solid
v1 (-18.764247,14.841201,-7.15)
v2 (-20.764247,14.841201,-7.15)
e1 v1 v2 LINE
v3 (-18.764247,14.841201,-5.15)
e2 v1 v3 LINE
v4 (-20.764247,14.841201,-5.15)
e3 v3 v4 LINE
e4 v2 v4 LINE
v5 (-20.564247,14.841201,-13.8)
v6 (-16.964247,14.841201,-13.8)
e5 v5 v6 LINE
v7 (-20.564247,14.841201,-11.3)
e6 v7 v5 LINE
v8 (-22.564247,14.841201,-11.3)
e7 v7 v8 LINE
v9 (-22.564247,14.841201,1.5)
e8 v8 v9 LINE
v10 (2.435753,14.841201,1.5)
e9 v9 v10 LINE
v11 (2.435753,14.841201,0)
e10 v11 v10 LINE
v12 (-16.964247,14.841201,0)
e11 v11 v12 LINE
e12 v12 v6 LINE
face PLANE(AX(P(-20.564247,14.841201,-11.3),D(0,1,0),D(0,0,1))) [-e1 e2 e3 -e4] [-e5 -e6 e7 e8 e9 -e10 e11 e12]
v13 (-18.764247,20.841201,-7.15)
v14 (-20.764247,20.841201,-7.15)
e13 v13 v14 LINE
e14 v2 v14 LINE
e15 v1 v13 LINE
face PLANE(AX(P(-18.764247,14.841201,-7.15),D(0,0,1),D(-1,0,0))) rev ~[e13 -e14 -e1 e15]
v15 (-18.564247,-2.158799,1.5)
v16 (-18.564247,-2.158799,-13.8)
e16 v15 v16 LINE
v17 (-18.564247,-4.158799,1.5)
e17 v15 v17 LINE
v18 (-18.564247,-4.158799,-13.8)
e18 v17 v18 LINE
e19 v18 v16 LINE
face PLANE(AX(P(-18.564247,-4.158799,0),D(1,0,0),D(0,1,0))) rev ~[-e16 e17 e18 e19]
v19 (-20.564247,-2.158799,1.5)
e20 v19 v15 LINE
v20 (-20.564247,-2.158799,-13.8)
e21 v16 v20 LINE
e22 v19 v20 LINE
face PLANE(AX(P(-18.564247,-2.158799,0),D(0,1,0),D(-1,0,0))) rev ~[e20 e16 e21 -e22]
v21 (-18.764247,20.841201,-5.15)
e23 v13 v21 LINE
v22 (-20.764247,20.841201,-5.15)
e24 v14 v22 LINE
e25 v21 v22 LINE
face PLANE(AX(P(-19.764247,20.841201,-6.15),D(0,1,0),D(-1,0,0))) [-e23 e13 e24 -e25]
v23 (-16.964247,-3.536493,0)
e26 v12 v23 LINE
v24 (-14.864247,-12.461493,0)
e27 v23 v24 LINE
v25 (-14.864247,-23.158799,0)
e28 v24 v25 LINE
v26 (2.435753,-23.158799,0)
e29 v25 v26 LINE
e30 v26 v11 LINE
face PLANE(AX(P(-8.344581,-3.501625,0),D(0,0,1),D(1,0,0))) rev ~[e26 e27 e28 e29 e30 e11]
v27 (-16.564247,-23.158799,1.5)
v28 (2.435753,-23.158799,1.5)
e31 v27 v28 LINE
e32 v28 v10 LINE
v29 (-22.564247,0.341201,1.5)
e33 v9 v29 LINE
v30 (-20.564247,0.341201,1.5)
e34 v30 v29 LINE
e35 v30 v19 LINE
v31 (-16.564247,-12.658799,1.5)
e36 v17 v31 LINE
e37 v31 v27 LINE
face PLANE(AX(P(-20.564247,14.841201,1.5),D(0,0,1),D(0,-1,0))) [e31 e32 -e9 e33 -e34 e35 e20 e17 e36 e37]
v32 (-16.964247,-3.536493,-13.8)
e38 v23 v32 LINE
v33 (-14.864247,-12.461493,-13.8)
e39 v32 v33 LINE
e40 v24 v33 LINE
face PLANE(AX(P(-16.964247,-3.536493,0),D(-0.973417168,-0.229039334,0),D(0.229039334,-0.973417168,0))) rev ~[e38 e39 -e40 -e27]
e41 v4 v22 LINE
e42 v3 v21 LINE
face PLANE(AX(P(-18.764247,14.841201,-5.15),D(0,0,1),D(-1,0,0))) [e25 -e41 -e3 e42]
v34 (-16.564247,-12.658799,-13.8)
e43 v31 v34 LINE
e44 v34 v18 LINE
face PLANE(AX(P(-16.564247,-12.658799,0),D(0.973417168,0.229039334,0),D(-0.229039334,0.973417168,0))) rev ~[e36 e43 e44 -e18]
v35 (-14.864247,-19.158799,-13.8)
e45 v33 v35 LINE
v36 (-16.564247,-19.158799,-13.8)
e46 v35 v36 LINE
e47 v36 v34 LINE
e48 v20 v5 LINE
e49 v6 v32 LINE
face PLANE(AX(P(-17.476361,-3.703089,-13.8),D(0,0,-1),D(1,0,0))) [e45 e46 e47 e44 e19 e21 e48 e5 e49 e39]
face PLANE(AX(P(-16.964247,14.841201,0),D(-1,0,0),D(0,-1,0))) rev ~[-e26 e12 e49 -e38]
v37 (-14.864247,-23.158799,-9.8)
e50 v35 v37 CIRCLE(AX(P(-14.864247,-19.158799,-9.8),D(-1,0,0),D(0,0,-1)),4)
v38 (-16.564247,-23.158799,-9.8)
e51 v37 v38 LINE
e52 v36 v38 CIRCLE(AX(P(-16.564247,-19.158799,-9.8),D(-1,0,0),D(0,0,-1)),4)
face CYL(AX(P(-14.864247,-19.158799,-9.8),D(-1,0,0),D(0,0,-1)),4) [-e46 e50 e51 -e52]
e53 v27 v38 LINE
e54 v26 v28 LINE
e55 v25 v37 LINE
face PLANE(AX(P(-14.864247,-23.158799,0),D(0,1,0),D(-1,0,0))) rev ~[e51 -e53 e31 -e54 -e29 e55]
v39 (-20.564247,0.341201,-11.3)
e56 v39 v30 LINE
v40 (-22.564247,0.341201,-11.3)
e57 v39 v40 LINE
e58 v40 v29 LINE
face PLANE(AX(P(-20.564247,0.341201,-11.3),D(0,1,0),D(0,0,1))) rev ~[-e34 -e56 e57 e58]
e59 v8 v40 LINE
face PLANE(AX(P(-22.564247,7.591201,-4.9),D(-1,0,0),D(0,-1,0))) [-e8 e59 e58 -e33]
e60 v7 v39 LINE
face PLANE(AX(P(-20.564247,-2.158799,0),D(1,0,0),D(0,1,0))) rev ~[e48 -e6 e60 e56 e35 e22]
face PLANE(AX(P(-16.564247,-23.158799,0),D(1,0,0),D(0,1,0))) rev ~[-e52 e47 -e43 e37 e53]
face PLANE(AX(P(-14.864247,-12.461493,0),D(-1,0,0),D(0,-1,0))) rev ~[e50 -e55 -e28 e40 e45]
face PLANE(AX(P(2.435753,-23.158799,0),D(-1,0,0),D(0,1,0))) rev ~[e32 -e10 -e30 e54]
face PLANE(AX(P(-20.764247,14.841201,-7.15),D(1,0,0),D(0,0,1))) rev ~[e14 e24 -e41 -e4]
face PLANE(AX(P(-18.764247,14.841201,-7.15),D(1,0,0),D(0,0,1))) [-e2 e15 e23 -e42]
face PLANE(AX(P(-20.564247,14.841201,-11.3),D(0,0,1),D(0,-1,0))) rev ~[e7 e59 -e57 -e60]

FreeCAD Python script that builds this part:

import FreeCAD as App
import Part
import Sketcher

V = App.Vector


def edges_at(feature, points):
    """Names of the edges that pass closest to the given points."""
    edges = feature.Shape.Edges
    near = lambda p: min(range(len(edges)), key=lambda i: edges[i].distToShape(Part.Vertex(*p))[0])
    return sorted({f"Edge{near(p) + 1}" for p in points})

doc = App.newDocument("Part")
body = doc.addObject("PartDesign::Body", "Body")

# Sketch on XY plane
sketch1 = body.newObject("Sketcher::SketchObject", "Sketch")
sketch1.AttachmentSupport = (doc.getObject("XY_Plane"), [""])
sketch1.MapMode = "FlatFace"
sketch1.addGeometry([
    Part.LineSegment(V(2.435753, 14.841201, 0), V(-20.564247, 14.841201, 0)),  # 0
    Part.LineSegment(V(-20.564247, 14.841201, 0), V(-20.564247, -2.158799, 0)),  # 1
    Part.LineSegment(V(-20.564247, -2.158799, 0), V(-18.564247, -2.158799, 0)),  # 2
    Part.LineSegment(V(-18.564247, -2.158799, 0), V(-18.564247, -4.158799, 0)),  # 3
    Part.LineSegment(V(-18.564247, -4.158799, 0), V(-16.564247, -12.658799, 0)),  # 4
    Part.LineSegment(V(-16.564247, -12.658799, 0), V(-16.564247, -23.158799, 0)),  # 5
    Part.LineSegment(V(-16.564247, -23.158799, 0), V(2.435753, -23.158799, 0)),  # 6
    Part.LineSegment(V(2.435753, -23.158799, 0), V(2.435753, 14.841201, 0)),  # 7
], False)
sketch1.addConstraint([
    Sketcher.Constraint("Coincident", 0, 2, 1, 1),
    Sketcher.Constraint("Coincident", 1, 2, 2, 1),
    Sketcher.Constraint("Coincident", 2, 2, 3, 1),
    Sketcher.Constraint("Coincident", 3, 2, 4, 1),
    Sketcher.Constraint("Coincident", 4, 2, 5, 1),
    Sketcher.Constraint("Coincident", 5, 2, 6, 1),
    Sketcher.Constraint("Coincident", 6, 2, 7, 1),
    Sketcher.Constraint("Coincident", 7, 2, 0, 1),
    Sketcher.Constraint("Horizontal", 0),
    Sketcher.Constraint("Vertical", 1),
    Sketcher.Constraint("Horizontal", 2),
    Sketcher.Constraint("Vertical", 3),
    Sketcher.Constraint("Vertical", 5),
    Sketcher.Constraint("Horizontal", 6),
    Sketcher.Constraint("Vertical", 7),
    Sketcher.Constraint("Equal", 2, 3),
    Sketcher.Constraint("DistanceX", 0, 2, 0, 1, 23.0),
    Sketcher.Constraint("DistanceX", 2, 1, 2, 2, 2.0),
    Sketcher.Constraint("DistanceX", 6, 1, 6, 2, 19.0),
    Sketcher.Constraint("DistanceY", 1, 2, 1, 1, 17.0),
    Sketcher.Constraint("DistanceY", 7, 1, 7, 2, 38.0),
    Sketcher.Constraint("DistanceY", 5, 2, 5, 1, 10.5),
    Sketcher.Constraint("DistanceY", -1, 1, 0, 2, 14.841201),
    Sketcher.Constraint("DistanceX", 0, 2, -1, 1, 20.564247),
])
pad1 = body.newObject("PartDesign::Pad", "Pad")
pad1.Profile = sketch1
pad1.Length = 1.5

# Sketch on XY plane
sketch2 = body.newObject("Sketcher::SketchObject", "Sketch001")
sketch2.AttachmentSupport = (doc.getObject("XY_Plane"), [""])
sketch2.MapMode = "FlatFace"
sketch2.addGeometry([
    Part.LineSegment(V(-14.864247, -23.158799, 0), V(-16.564247, -23.158799, 0)),  # 0
    Part.LineSegment(V(-16.564247, -23.158799, 0), V(-16.564247, -12.658799, 0)),  # 1
    Part.LineSegment(V(-16.564247, -12.658799, 0), V(-18.564247, -4.158799, 0)),  # 2
    Part.LineSegment(V(-18.564247, -4.158799, 0), V(-18.564247, -2.158799, 0)),  # 3
    Part.LineSegment(V(-18.564247, -2.158799, 0), V(-20.564247, -2.158799, 0)),  # 4
    Part.LineSegment(V(-20.564247, -2.158799, 0), V(-20.564247, 14.841201, 0)),  # 5
    Part.LineSegment(V(-20.564247, 14.841201, 0), V(-16.964247, 14.841201, 0)),  # 6
    Part.LineSegment(V(-16.964247, 14.841201, 0), V(-16.964247, -3.536493, 0)),  # 7
    Part.LineSegment(V(-16.964247, -3.536493, 0), V(-14.864247, -12.461493, 0)),  # 8
    Part.LineSegment(V(-14.864247, -12.461493, 0), V(-14.864247, -23.158799, 0)),  # 9
], False)
sketch2.addConstraint([
    Sketcher.Constraint("Coincident", 0, 2, 1, 1),
    Sketcher.Constraint("Coincident", 1, 2, 2, 1),
    Sketcher.Constraint("Coincident", 2, 2, 3, 1),
    Sketcher.Constraint("Coincident", 3, 2, 4, 1),
    Sketcher.Constraint("Coincident", 4, 2, 5, 1),
    Sketcher.Constraint("Coincident", 5, 2, 6, 1),
    Sketcher.Constraint("Coincident", 6, 2, 7, 1),
    Sketcher.Constraint("Coincident", 7, 2, 8, 1),
    Sketcher.Constraint("Coincident", 8, 2, 9, 1),
    Sketcher.Constraint("Coincident", 9, 2, 0, 1),
    Sketcher.Constraint("Horizontal", 0),
    Sketcher.Constraint("Vertical", 1),
    Sketcher.Constraint("Vertical", 3),
    Sketcher.Constraint("Horizontal", 4),
    Sketcher.Constraint("Vertical", 5),
    Sketcher.Constraint("Horizontal", 6),
    Sketcher.Constraint("Vertical", 7),
    Sketcher.Constraint("Vertical", 9),
    Sketcher.Constraint("Parallel", 2, 8),
    Sketcher.Constraint("Equal", 4, 3),
    Sketcher.Constraint("DistanceX", 4, 2, 4, 1, 2.0),
    Sketcher.Constraint("DistanceY", 5, 1, 5, 2, 17.0),
    Sketcher.Constraint("DistanceX", 0, 2, 0, 1, 1.7),
    Sketcher.Constraint("DistanceX", 6, 1, 6, 2, 3.6),
    Sketcher.Constraint("DistanceY", 1, 1, 1, 2, 10.5),
    Sketcher.Constraint("DistanceX", 2, 2, 1, 2, 2.0),
    Sketcher.Constraint("DistanceY", 0, 2, 2, 2, 19.0),
    Sketcher.Constraint("DistanceY", 0, 2, -1, 1, 23.158799),
    Sketcher.Constraint("DistanceY", 7, 2, 7, 1, 18.377694),
    Sketcher.Constraint("DistanceX", 0, 2, -1, 1, 16.564247),
])
pad2 = body.newObject("PartDesign::Pad", "Pad001")
pad2.Profile = sketch2
pad2.Length = 13.8
pad2.Reversed = True

# Sketch on YZ plane
sketch3 = body.newObject("Sketcher::SketchObject", "Sketch002")
sketch3.AttachmentSupport = (doc.getObject("YZ_Plane"), [""])
sketch3.MapMode = "FlatFace"
sketch3.AttachmentOffset = App.Placement(V(0, 0, -20.564247), App.Rotation())
sketch3.addGeometry([
    Part.LineSegment(V(14.841201, 1.5, 0), V(14.841201, -11.3, 0)),
    Part.LineSegment(V(14.841201, -11.3, 0), V(0.341201, -11.3, 0)),
    Part.LineSegment(V(0.341201, -11.3, 0), V(0.341201, 1.5, 0)),
    Part.LineSegment(V(0.341201, 1.5, 0), V(14.841201, 1.5, 0)),
], False)
sketch3.addConstraint([
    Sketcher.Constraint("Coincident", 0, 2, 1, 1),
    Sketcher.Constraint("Coincident", 1, 2, 2, 1),
    Sketcher.Constraint("Coincident", 2, 2, 3, 1),
    Sketcher.Constraint("Coincident", 3, 2, 0, 1),
    Sketcher.Constraint("Vertical", 0),
    Sketcher.Constraint("Horizontal", 1),
    Sketcher.Constraint("Vertical", 2),
    Sketcher.Constraint("Horizontal", 3),
    Sketcher.Constraint("DistanceX", 1, 2, 1, 1, 14.5),
    Sketcher.Constraint("DistanceY", 0, 2, 0, 1, 12.8),
    Sketcher.Constraint("DistanceY", 0, 2, -1, 1, 11.3),
    Sketcher.Constraint("DistanceX", -1, 1, 0, 2, 14.841201),
])
pad3 = body.newObject("PartDesign::Pad", "Pad002")
pad3.Profile = sketch3
pad3.Length = 2
pad3.Reversed = True

# Sketch on XZ plane
sketch4 = body.newObject("Sketcher::SketchObject", "Sketch003")
sketch4.AttachmentSupport = (doc.getObject("XZ_Plane"), [""])
sketch4.MapMode = "FlatFace"
sketch4.AttachmentOffset = App.Placement(V(0, 0, -14.841201), App.Rotation())
sketch4.addGeometry([
    Part.LineSegment(V(-18.764247, -5.15, 0), V(-18.764247, -7.15, 0)),
    Part.LineSegment(V(-18.764247, -7.15, 0), V(-20.764247, -7.15, 0)),
    Part.LineSegment(V(-20.764247, -7.15, 0), V(-20.764247, -5.15, 0)),
    Part.LineSegment(V(-20.764247, -5.15, 0), V(-18.764247, -5.15, 0)),
], False)
sketch4.addConstraint([
    Sketcher.Constraint("Coincident", 0, 2, 1, 1),
    Sketcher.Constraint("Coincident", 1, 2, 2, 1),
    Sketcher.Constraint("Coincident", 2, 2, 3, 1),
    Sketcher.Constraint("Coincident", 3, 2, 0, 1),
    Sketcher.Constraint("Vertical", 0),
    Sketcher.Constraint("Horizontal", 1),
    Sketcher.Constraint("Vertical", 2),
    Sketcher.Constraint("Horizontal", 3),
    Sketcher.Constraint("Equal", 3, 0),
    Sketcher.Constraint("DistanceX", 1, 2, 1, 1, 2.0),
    Sketcher.Constraint("DistanceY", 0, 2, -1, 1, 7.15),
    Sketcher.Constraint("DistanceX", 0, 2, -1, 1, 18.764247),
])
pad4 = body.newObject("PartDesign::Pad", "Pad003")
pad4.Profile = sketch4
pad4.Length = 6
pad4.Reversed = True
doc.recompute()

fillet = body.newObject("PartDesign::Fillet", "Fillet")
fillet.Base = (pad4, edges_at(pad4, [(-15.714, -23.159, -13.8)]))
fillet.Radius = 4

doc.recompute()
